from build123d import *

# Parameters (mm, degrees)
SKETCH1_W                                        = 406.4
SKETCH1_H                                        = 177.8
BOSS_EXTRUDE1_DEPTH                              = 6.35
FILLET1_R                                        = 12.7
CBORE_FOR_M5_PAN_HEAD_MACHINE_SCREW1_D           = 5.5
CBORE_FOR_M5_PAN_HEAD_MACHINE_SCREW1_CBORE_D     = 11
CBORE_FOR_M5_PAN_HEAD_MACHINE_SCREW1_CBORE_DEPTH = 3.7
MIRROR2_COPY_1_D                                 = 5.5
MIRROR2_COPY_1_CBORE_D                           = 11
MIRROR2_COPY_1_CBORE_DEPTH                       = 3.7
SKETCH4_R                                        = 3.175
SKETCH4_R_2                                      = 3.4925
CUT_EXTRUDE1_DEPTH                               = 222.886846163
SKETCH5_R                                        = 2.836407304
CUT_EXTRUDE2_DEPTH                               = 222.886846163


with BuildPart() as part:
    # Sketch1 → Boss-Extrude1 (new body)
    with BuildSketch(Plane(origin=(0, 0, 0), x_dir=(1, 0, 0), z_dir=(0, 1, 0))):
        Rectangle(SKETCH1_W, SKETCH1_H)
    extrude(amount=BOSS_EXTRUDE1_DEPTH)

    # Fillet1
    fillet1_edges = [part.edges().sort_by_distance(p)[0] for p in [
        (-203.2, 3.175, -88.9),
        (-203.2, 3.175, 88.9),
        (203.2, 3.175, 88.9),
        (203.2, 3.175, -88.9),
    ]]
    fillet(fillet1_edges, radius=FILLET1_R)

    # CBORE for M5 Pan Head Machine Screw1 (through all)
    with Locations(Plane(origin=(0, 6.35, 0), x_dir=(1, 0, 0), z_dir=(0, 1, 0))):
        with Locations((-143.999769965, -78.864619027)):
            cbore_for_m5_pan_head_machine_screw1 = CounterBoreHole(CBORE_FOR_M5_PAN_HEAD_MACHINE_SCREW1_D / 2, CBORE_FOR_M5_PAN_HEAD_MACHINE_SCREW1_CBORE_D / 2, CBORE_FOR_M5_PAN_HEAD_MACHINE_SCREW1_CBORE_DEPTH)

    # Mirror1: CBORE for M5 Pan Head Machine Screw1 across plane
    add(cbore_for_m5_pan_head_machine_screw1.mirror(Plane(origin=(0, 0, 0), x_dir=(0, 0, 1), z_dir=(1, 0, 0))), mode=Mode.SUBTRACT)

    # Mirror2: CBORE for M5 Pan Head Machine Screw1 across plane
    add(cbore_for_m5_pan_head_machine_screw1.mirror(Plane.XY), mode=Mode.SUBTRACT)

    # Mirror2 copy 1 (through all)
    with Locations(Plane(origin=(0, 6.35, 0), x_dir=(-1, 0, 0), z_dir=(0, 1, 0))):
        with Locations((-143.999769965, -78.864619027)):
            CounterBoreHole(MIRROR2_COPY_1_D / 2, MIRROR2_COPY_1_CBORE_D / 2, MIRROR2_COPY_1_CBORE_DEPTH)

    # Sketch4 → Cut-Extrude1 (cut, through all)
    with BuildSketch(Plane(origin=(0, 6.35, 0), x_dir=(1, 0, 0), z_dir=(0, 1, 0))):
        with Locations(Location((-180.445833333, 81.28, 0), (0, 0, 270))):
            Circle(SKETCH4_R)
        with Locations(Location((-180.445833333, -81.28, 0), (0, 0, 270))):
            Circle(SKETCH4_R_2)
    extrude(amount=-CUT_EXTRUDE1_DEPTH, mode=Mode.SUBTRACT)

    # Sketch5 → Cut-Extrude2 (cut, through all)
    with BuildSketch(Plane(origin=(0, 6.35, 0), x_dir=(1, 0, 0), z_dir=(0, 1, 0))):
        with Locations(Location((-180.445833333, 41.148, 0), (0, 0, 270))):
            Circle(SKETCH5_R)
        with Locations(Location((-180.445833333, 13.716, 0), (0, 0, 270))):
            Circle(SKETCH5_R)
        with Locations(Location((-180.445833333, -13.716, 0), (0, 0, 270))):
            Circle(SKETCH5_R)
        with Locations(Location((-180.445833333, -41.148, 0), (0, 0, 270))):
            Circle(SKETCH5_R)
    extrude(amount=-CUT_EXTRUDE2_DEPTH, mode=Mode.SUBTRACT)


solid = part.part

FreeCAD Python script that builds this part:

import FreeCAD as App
import Part
import Sketcher
from FreeCAD import Vector
Q = App.Units.Quantity


def edges_at(feature, points):
    """Names of the edges that pass closest to the given points."""
    edges = feature.Shape.Edges
    near = lambda p: min(range(len(edges)), key=lambda i: edges[i].distToShape(Part.Vertex(*p))[0])
    return sorted({f"Edge{near(p) + 1}" for p in points})


def add_polygon(sketch, points):
    """Adds a closed chain of lines whose ends are joined by coincident constraints."""
    first, n = sketch.GeometryCount, len(points)
    for a, b in zip(points, points[1:] + points[:1]):
        sketch.addGeometry(Part.LineSegment(App.Vector(*a, 0), App.Vector(*b, 0)), False)
    for i in range(n):
        sketch.addConstraint(Sketcher.Constraint("Coincident", first + i, 2, first + (i + 1) % n, 1))

doc = App.newDocument("Part")
body = doc.addObject("PartDesign::Body", "Body")

# Sketch on XZ plane
sketch1 = body.newObject("Sketcher::SketchObject", "Sketch")
sketch1.AttachmentSupport = (doc.getObject("XZ_Plane"), [""])
sketch1.MapMode = "FlatFace"
add_polygon(sketch1, [(-203, -89), (-203, 89), (203, 89), (203, -89)])  # lines 0-3
sketch1.addConstraint([
    Sketcher.Constraint("Vertical", 0),
    Sketcher.Constraint("Horizontal", 1),
    Sketcher.Constraint("Vertical", 2),
    Sketcher.Constraint("Horizontal", 3),
    Sketcher.Constraint("Symmetric", 0, 2, 2, 2, -1, 1),
    Sketcher.Constraint("DistanceX", 1, 1, 1, 2, Q("16 in")),
    Sketcher.Constraint("DistanceY", 0, 1, 0, 2, Q("7 in")),
])
pad1 = body.newObject("PartDesign::Pad", "Pad")
pad1.Profile = sketch1
pad1.Length = Q("0.25 in")
pad1.Reversed = True
doc.recompute()

fillet = body.newObject("PartDesign::Fillet", "Fillet")
fillet.Base = (pad1, edges_at(pad1, [
    (-203.2, 3.175, -88.9),
    (-203.2, 3.175, 88.9),
    (203.2, 3.175, 88.9),
    (203.2, 3.175, -88.9),
]))
fillet.Radius = Q("0.5 in")

# Sketch on XZ plane
sketch2 = body.newObject("Sketcher::SketchObject", "Sketch001")
sketch2.AttachmentSupport = (doc.getObject("XZ_Plane"), [""])
sketch2.MapMode = "FlatFace"
sketch2.AttachmentOffset = App.Placement(Vector(0, 0, -0.25 * 25.4), App.Rotation())
sketch2.addGeometry(Part.Circle(Vector(-144, 78.9, 0), Vector(0, 0, 1), 2.8), False)
sketch2.addConstraint([
    Sketcher.Constraint("Diameter", 0, 5.5),
    Sketcher.Constraint("DistanceX", 0, 3, -1, 1, 143.99977),
    Sketcher.Constraint("DistanceY", -1, 1, 0, 3, 78.864619),
])
doc.recompute()
hole = body.newObject("PartDesign::Hole", "Hole")
hole.Profile = sketch2
hole.ThreadType = "None"
hole.Diameter = 5.5
hole.DepthType = "ThroughAll"
hole.HoleCutType = "Counterbore"
hole.HoleCutDiameter = 11
hole.HoleCutDepth = 3.7
hole.Reversed = True
doc.recompute()

mirrored = body.newObject("PartDesign::Mirrored", "Mirrored")
mirrored.Originals = [hole]
mirrored.MirrorPlane = (doc.getObject("YZ_Plane"), [""])
body.Tip = mirrored
doc.recompute()

mirrored2 = body.newObject("PartDesign::Mirrored", "Mirrored001")
mirrored2.Originals = [hole]
mirrored2.MirrorPlane = (doc.getObject("XY_Plane"), [""])
body.Tip = mirrored2

# Sketch on XZ plane
sketch3 = body.newObject("Sketcher::SketchObject", "Sketch002")
sketch3.AttachmentSupport = (doc.getObject("XZ_Plane"), [""])
sketch3.MapMode = "FlatFace"
sketch3.AttachmentOffset = App.Placement(Vector(0, 0, -0.25 * 25.4), App.Rotation())
sketch3.addGeometry(Part.Circle(Vector(144, -78.9, 0), Vector(0, 0, 1), 2.8), False)
sketch3.addConstraint([
    Sketcher.Constraint("Diameter", 0, 5.5),
    Sketcher.Constraint("DistanceX", -1, 1, 0, 3, 143.99977),
    Sketcher.Constraint("DistanceY", 0, 3, -1, 1, 78.864619),
])
doc.recompute()
hole2 = body.newObject("PartDesign::Hole", "Hole001")
hole2.Profile = sketch3
hole2.ThreadType = "None"
hole2.Diameter = 5.5
hole2.DepthType = "ThroughAll"
hole2.HoleCutType = "Counterbore"
hole2.HoleCutDiameter = 11
hole2.HoleCutDepth = 3.7
hole2.Reversed = True

# Sketch on XZ plane
sketch4 = body.newObject("Sketcher::SketchObject", "Sketch003")
sketch4.AttachmentSupport = (doc.getObject("XZ_Plane"), [""])
sketch4.MapMode = "FlatFace"
sketch4.AttachmentOffset = App.Placement(Vector(0, 0, -0.25 * 25.4), App.Rotation())
sketch4.addGeometry([
    Part.Circle(Vector(-180.4, -81.3, 0), Vector(0, 0, 1), 3.2),
    Part.Circle(Vector(-180.4, 81.3, 0), Vector(0, 0, 1), 3.5),
], False)
sketch4.addConstraint([
    Sketcher.Constraint("Symmetric", 0, 3, 1, 3, -1),
    Sketcher.Constraint("Diameter", 0, Q("0.25 in")),
    Sketcher.Constraint("Diameter", 1, Q("0.275 in")),
    Sketcher.Constraint("DistanceY", 0, 3, -1, 1, Q("3.2 in")),
    Sketcher.Constraint("DistanceX", 0, 3, -1, 1, 180.445833),
])
pocket1 = body.newObject("PartDesign::Pocket", "Pocket")
pocket1.Profile = sketch4
pocket1.Type = "ThroughAll"
pocket1.Reversed = True

# Sketch on XZ plane
sketch5 = body.newObject("Sketcher::SketchObject", "Sketch004")
sketch5.AttachmentSupport = (doc.getObject("XZ_Plane"), [""])
sketch5.MapMode = "FlatFace"
sketch5.AttachmentOffset = App.Placement(Vector(0, 0, -0.25 * 25.4), App.Rotation())
sketch5.addGeometry([
    Part.Circle(Vector(-180.4, -41.1, 0), Vector(0, 0, 1), 2.8),
    Part.Circle(Vector(-180.4, -13.7, 0), Vector(0, 0, 1), 2.8),
    Part.Circle(Vector(-180.4, 13.7, 0), Vector(0, 0, 1), 2.8),
    Part.Circle(Vector(-180.4, 41.1, 0), Vector(0, 0, 1), 2.8),
], False)
sketch5.addConstraint([
    Sketcher.Constraint("Equal", 0, 1),
    Sketcher.Constraint("Equal", 1, 2),
    Sketcher.Constraint("Equal", 2, 3),
    Sketcher.Constraint("Symmetric", 1, 3, 2, 3, -1),
    Sketcher.Constraint("Symmetric", 0, 3, 3, 3, -1),
    Sketcher.Constraint("Vertical", 0, 3, 1, 3),
    Sketcher.Constraint("DistanceY", 0, 3, -1, 1, Q("1.62 in")),
    Sketcher.Constraint("DistanceY", 1, 3, -1, 1, Q("0.54 in")),
    Sketcher.Constraint("Diameter", 0, 5.672815),
    Sketcher.Constraint("DistanceX", 0, 3, -1, 1, 180.445833),
])
pocket2 = body.newObject("PartDesign::Pocket", "Pocket001")
pocket2.Profile = sketch5
pocket2.Type = "ThroughAll"
pocket2.Reversed = True

doc.recompute()
